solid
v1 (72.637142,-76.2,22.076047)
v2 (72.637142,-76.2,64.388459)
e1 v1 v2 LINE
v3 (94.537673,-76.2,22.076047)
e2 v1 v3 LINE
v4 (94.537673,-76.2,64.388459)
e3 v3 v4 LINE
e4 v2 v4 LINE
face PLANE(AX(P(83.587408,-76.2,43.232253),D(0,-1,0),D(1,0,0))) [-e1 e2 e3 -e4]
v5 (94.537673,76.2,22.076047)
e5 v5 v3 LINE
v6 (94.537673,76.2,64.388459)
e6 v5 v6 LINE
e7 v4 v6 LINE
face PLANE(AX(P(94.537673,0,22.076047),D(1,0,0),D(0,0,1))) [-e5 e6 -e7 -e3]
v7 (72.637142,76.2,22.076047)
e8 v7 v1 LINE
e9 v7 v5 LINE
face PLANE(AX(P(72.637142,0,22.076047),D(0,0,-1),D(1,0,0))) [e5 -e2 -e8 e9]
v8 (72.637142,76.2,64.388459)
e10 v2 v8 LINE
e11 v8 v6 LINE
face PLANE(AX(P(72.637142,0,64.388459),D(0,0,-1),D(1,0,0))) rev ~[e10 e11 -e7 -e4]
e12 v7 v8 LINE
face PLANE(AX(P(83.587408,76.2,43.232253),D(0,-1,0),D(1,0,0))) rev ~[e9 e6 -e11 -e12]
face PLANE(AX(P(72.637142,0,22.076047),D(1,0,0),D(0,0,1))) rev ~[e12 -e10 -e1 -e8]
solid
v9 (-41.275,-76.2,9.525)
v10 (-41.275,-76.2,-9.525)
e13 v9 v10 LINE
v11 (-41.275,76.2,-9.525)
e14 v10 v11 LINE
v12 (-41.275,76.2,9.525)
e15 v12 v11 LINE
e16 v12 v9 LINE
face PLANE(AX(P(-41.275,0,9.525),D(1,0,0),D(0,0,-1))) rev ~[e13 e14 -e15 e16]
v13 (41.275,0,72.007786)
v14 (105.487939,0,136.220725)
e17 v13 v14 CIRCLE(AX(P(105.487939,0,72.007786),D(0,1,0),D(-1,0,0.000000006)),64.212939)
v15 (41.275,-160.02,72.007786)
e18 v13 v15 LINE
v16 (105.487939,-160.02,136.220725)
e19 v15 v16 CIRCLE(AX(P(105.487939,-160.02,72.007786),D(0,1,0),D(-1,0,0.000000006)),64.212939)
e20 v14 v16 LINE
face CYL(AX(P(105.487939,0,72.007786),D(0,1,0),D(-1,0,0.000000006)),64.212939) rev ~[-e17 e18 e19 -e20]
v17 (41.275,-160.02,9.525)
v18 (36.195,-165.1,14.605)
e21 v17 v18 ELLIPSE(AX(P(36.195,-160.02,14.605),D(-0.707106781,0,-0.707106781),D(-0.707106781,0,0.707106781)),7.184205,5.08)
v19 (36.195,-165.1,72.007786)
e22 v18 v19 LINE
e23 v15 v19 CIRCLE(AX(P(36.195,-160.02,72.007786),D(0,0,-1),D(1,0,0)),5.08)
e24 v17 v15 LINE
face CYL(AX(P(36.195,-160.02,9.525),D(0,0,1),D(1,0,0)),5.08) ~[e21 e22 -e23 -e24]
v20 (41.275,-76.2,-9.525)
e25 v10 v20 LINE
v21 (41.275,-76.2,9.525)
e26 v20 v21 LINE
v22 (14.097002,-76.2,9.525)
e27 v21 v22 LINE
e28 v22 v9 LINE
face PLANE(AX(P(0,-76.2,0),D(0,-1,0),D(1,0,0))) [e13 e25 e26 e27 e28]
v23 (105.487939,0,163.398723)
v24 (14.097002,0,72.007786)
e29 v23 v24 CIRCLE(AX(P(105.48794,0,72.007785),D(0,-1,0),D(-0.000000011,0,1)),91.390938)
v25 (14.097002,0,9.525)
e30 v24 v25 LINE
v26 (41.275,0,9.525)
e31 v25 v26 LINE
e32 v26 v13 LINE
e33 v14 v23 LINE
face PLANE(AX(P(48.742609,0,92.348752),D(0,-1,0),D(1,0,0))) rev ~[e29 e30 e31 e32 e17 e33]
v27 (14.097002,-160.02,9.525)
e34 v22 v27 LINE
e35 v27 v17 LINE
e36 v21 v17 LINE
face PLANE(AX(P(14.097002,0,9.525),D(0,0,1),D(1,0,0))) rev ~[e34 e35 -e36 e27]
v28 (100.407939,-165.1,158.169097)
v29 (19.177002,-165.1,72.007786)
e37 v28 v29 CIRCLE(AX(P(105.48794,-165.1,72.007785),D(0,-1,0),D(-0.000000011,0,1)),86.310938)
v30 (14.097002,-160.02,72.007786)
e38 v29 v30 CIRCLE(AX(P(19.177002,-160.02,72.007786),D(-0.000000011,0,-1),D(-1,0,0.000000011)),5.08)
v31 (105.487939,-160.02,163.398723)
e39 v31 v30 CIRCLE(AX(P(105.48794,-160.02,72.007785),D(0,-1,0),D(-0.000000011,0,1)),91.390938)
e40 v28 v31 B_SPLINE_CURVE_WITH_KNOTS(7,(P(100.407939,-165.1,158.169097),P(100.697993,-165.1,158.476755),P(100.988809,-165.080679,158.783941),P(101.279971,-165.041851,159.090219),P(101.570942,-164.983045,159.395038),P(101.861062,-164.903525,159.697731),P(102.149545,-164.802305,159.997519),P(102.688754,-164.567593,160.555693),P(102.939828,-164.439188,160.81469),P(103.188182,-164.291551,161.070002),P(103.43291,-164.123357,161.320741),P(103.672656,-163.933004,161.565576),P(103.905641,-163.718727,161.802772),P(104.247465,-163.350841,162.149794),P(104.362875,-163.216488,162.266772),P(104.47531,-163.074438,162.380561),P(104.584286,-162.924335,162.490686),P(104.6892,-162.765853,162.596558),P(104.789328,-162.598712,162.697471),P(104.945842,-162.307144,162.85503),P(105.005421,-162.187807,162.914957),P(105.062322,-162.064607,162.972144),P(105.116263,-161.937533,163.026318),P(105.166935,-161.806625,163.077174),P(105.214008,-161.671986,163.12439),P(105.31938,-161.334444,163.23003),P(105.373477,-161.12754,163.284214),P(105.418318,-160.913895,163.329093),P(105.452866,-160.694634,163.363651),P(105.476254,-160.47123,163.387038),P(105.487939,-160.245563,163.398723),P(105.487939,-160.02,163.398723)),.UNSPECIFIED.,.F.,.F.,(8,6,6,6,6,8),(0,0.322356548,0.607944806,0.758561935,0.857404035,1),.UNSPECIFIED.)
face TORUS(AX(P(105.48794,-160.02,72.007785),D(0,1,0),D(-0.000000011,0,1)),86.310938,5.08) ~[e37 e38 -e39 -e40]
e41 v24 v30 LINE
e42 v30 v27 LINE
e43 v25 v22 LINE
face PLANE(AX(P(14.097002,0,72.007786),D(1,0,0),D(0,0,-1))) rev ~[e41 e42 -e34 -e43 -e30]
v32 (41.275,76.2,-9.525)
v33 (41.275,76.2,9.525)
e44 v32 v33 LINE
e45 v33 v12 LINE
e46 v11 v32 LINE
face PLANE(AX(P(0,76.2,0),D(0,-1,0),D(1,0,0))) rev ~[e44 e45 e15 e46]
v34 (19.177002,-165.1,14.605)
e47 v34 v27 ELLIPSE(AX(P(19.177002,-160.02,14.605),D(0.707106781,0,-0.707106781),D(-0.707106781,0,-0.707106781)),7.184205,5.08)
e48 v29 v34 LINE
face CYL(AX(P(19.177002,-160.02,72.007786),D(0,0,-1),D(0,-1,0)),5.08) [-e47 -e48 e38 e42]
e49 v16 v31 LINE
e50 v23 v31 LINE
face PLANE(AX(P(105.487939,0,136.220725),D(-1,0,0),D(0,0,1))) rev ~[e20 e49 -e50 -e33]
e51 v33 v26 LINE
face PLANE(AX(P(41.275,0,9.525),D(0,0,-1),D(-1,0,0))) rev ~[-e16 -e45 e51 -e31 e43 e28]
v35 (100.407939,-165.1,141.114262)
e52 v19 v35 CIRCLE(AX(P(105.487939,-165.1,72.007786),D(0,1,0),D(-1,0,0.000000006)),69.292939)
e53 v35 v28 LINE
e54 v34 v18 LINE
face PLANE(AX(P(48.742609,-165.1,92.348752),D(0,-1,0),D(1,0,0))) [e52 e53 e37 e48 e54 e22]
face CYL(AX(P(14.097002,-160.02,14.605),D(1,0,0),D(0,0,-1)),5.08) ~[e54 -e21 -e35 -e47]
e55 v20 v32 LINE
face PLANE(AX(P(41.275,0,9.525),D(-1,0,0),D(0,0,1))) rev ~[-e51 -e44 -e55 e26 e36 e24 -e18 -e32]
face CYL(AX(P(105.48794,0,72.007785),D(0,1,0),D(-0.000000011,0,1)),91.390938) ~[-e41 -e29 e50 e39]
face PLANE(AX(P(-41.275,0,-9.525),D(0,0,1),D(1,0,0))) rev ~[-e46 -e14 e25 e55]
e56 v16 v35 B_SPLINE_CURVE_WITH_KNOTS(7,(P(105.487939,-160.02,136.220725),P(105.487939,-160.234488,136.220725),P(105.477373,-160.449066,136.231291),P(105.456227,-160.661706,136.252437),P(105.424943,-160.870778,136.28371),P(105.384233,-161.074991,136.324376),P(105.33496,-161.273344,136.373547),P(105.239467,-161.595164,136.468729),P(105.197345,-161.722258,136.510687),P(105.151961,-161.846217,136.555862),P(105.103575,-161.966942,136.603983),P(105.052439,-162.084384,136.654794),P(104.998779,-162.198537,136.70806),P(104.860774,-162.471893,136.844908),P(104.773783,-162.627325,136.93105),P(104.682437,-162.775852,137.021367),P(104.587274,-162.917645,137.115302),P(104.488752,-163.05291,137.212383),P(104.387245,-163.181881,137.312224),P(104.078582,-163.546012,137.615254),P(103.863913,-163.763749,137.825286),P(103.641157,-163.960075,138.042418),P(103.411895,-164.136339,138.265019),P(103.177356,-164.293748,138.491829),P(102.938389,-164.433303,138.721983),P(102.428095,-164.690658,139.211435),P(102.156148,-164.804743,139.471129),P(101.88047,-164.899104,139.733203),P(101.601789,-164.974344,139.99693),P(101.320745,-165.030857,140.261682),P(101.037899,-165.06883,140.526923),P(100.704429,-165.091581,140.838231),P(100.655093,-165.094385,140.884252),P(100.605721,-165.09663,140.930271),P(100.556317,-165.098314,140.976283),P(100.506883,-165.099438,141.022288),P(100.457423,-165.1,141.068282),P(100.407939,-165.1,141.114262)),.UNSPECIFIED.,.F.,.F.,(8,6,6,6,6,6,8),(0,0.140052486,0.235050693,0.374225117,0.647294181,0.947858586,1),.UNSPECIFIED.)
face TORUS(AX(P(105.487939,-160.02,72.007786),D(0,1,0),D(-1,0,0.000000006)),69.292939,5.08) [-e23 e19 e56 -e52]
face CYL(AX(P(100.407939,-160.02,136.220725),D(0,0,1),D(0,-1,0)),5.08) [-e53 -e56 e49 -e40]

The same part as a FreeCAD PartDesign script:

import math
import FreeCAD as App
import Part
import Sketcher

V = App.Vector
Q = App.Units.Quantity


def edges_at(feature, points):
    """Names of the edges that pass closest to the given points."""
    edges = feature.Shape.Edges
    near = lambda p: min(range(len(edges)), key=lambda i: edges[i].distToShape(Part.Vertex(*p))[0])
    return sorted({f"Edge{near(p) + 1}" for p in points})

doc = App.newDocument("Part")
body = doc.addObject("PartDesign::Body", "Body")
body.AllowCompound = True

sketch1 = doc.addObject("Sketcher::SketchObject", "Sketch")
body.addObject(sketch1)
sketch1.AttachmentSupport = (doc.XZ_Plane, [""])
sketch1.MapMode = "FlatFace"
sketch1.addGeometry([
    Part.LineSegment(V(41, -10, 0), V(41, 10, 0)),
    Part.LineSegment(V(41, 10, 0), V(-41, 10, 0)),
    Part.LineSegment(V(-41, 10, 0), V(-41, -10, 0)),
    Part.LineSegment(V(-41, -10, 0), V(41, -10, 0)),
    Part.LineSegment(V(73, 64, 0), V(73, 22, 0)),
    Part.LineSegment(V(73, 22, 0), V(95, 22, 0)),
    Part.LineSegment(V(95, 22, 0), V(95, 64, 0)),
    Part.LineSegment(V(95, 64, 0), V(73, 64, 0)),
], False)
sketch1.addConstraint([
    Sketcher.Constraint("Coincident", 0, 2, 1, 1),
    Sketcher.Constraint("Coincident", 1, 2, 2, 1),
    Sketcher.Constraint("Coincident", 2, 2, 3, 1),
    Sketcher.Constraint("Coincident", 3, 2, 0, 1),
    Sketcher.Constraint("Coincident", 4, 2, 5, 1),
    Sketcher.Constraint("Coincident", 5, 2, 6, 1),
    Sketcher.Constraint("Coincident", 6, 2, 7, 1),
    Sketcher.Constraint("Coincident", 7, 2, 4, 1),
    Sketcher.Constraint("Vertical", 0),
    Sketcher.Constraint("Horizontal", 1),
    Sketcher.Constraint("Vertical", 2),
    Sketcher.Constraint("Horizontal", 3),
    Sketcher.Constraint("Vertical", 4),
    Sketcher.Constraint("Horizontal", 5),
    Sketcher.Constraint("Vertical", 6),
    Sketcher.Constraint("Horizontal", 7),
    Sketcher.Constraint("Symmetric", 0, 2, 2, 2, -1, 1),
    Sketcher.Constraint("DistanceX", 1, 2, 1, 1, Q("3.25 in")),
    Sketcher.Constraint("DistanceY", 0, 1, 0, 2, Q("0.75 in")),
    Sketcher.Constraint("DistanceX", 5, 1, 5, 2, Q("21.900531 mm")),
    Sketcher.Constraint("DistanceY", 4, 2, 4, 1, Q("42.312413 mm")),
    Sketcher.Constraint("DistanceY", -1, 1, 6, 2, Q("64.388459 mm")),
    Sketcher.Constraint("DistanceX", -1, 1, 4, 2, Q("72.637142 mm")),
])
pad1 = doc.addObject("PartDesign::Pad", "Pad")
body.addObject(pad1)
pad1.Profile = sketch1
pad1.Length = Q("6 in")
pad1.Midplane = True

sketch2 = doc.addObject("Sketcher::SketchObject", "Sketch001")
body.addObject(sketch2)
sketch2.AttachmentSupport = (doc.XZ_Plane, [""])
sketch2.MapMode = "FlatFace"
sketch2.addGeometry([
    Part.LineSegment(V(14, 10, 0), V(41, 10, 0)),
    Part.LineSegment(V(41, 10, 0), V(41, 72, 0)),
    Part.ArcOfCircle(Part.Circle(V(105, 72, 0), V(0, 0, 1), 64), math.radians(90), math.radians(180)),
    Part.LineSegment(V(105, 136, 0), V(105, 163, 0)),
    Part.ArcOfCircle(Part.Circle(V(105, 72, 0), V(0, 0, 1), 91), math.radians(90), math.radians(180)),
    Part.LineSegment(V(14, 72, 0), V(14, 10, 0)),
], False)
sketch2.addConstraint([
    Sketcher.Constraint("Coincident", 0, 2, 1, 1),
    Sketcher.Constraint("Tangent", 1, 2, 2, 2),
    Sketcher.Constraint("Coincident", 2, 1, 3, 1),
    Sketcher.Constraint("Coincident", 3, 2, 4, 1),
    Sketcher.Constraint("Tangent", 4, 2, 5, 1),
    Sketcher.Constraint("Coincident", 5, 2, 0, 1),
    Sketcher.Constraint("Horizontal", 0),
    Sketcher.Constraint("Vertical", 1),
    Sketcher.Constraint("Vertical", 3),
    Sketcher.Constraint("Vertical", 5),
    Sketcher.Constraint("Coincident", 4, 3, 2, 3),
    Sketcher.Constraint("Vertical", 4, 3, 2, 1),
    Sketcher.Constraint("DistanceX", 0, 1, 0, 2, Q("1.0699999 in")),
    Sketcher.Constraint("DistanceX", -1, 1, 0, 2, Q("1.625 in")),
    Sketcher.Constraint("DistanceY", -1, 1, 0, 2, Q("0.375 in")),
    Sketcher.Constraint("Radius", 2, Q("64.212939 mm")),
    Sketcher.Constraint("DistanceY", 1, 1, 1, 2, Q("62.482786 mm")),
])
pad2 = doc.addObject("PartDesign::Pad", "Pad001")
body.addObject(pad2)
pad2.Profile = sketch2
pad2.Length = Q("6.5 in")
doc.recompute()

fillet = doc.addObject("PartDesign::Fillet", "Fillet")
body.addObject(fillet)
fillet.Base = (pad2, edges_at(pad2, [
    (41.275, -165.1, 40.766),
    (14.097, -165.1, 40.766),
    (27.686, -165.1, 9.525),
    (60.083, -165.1, 117.413),
    (105.488, -165.1, 149.81),
    (40.865, -165.1, 136.631),
]))
fillet.Radius = Q("0.2 in")

doc.recompute()
